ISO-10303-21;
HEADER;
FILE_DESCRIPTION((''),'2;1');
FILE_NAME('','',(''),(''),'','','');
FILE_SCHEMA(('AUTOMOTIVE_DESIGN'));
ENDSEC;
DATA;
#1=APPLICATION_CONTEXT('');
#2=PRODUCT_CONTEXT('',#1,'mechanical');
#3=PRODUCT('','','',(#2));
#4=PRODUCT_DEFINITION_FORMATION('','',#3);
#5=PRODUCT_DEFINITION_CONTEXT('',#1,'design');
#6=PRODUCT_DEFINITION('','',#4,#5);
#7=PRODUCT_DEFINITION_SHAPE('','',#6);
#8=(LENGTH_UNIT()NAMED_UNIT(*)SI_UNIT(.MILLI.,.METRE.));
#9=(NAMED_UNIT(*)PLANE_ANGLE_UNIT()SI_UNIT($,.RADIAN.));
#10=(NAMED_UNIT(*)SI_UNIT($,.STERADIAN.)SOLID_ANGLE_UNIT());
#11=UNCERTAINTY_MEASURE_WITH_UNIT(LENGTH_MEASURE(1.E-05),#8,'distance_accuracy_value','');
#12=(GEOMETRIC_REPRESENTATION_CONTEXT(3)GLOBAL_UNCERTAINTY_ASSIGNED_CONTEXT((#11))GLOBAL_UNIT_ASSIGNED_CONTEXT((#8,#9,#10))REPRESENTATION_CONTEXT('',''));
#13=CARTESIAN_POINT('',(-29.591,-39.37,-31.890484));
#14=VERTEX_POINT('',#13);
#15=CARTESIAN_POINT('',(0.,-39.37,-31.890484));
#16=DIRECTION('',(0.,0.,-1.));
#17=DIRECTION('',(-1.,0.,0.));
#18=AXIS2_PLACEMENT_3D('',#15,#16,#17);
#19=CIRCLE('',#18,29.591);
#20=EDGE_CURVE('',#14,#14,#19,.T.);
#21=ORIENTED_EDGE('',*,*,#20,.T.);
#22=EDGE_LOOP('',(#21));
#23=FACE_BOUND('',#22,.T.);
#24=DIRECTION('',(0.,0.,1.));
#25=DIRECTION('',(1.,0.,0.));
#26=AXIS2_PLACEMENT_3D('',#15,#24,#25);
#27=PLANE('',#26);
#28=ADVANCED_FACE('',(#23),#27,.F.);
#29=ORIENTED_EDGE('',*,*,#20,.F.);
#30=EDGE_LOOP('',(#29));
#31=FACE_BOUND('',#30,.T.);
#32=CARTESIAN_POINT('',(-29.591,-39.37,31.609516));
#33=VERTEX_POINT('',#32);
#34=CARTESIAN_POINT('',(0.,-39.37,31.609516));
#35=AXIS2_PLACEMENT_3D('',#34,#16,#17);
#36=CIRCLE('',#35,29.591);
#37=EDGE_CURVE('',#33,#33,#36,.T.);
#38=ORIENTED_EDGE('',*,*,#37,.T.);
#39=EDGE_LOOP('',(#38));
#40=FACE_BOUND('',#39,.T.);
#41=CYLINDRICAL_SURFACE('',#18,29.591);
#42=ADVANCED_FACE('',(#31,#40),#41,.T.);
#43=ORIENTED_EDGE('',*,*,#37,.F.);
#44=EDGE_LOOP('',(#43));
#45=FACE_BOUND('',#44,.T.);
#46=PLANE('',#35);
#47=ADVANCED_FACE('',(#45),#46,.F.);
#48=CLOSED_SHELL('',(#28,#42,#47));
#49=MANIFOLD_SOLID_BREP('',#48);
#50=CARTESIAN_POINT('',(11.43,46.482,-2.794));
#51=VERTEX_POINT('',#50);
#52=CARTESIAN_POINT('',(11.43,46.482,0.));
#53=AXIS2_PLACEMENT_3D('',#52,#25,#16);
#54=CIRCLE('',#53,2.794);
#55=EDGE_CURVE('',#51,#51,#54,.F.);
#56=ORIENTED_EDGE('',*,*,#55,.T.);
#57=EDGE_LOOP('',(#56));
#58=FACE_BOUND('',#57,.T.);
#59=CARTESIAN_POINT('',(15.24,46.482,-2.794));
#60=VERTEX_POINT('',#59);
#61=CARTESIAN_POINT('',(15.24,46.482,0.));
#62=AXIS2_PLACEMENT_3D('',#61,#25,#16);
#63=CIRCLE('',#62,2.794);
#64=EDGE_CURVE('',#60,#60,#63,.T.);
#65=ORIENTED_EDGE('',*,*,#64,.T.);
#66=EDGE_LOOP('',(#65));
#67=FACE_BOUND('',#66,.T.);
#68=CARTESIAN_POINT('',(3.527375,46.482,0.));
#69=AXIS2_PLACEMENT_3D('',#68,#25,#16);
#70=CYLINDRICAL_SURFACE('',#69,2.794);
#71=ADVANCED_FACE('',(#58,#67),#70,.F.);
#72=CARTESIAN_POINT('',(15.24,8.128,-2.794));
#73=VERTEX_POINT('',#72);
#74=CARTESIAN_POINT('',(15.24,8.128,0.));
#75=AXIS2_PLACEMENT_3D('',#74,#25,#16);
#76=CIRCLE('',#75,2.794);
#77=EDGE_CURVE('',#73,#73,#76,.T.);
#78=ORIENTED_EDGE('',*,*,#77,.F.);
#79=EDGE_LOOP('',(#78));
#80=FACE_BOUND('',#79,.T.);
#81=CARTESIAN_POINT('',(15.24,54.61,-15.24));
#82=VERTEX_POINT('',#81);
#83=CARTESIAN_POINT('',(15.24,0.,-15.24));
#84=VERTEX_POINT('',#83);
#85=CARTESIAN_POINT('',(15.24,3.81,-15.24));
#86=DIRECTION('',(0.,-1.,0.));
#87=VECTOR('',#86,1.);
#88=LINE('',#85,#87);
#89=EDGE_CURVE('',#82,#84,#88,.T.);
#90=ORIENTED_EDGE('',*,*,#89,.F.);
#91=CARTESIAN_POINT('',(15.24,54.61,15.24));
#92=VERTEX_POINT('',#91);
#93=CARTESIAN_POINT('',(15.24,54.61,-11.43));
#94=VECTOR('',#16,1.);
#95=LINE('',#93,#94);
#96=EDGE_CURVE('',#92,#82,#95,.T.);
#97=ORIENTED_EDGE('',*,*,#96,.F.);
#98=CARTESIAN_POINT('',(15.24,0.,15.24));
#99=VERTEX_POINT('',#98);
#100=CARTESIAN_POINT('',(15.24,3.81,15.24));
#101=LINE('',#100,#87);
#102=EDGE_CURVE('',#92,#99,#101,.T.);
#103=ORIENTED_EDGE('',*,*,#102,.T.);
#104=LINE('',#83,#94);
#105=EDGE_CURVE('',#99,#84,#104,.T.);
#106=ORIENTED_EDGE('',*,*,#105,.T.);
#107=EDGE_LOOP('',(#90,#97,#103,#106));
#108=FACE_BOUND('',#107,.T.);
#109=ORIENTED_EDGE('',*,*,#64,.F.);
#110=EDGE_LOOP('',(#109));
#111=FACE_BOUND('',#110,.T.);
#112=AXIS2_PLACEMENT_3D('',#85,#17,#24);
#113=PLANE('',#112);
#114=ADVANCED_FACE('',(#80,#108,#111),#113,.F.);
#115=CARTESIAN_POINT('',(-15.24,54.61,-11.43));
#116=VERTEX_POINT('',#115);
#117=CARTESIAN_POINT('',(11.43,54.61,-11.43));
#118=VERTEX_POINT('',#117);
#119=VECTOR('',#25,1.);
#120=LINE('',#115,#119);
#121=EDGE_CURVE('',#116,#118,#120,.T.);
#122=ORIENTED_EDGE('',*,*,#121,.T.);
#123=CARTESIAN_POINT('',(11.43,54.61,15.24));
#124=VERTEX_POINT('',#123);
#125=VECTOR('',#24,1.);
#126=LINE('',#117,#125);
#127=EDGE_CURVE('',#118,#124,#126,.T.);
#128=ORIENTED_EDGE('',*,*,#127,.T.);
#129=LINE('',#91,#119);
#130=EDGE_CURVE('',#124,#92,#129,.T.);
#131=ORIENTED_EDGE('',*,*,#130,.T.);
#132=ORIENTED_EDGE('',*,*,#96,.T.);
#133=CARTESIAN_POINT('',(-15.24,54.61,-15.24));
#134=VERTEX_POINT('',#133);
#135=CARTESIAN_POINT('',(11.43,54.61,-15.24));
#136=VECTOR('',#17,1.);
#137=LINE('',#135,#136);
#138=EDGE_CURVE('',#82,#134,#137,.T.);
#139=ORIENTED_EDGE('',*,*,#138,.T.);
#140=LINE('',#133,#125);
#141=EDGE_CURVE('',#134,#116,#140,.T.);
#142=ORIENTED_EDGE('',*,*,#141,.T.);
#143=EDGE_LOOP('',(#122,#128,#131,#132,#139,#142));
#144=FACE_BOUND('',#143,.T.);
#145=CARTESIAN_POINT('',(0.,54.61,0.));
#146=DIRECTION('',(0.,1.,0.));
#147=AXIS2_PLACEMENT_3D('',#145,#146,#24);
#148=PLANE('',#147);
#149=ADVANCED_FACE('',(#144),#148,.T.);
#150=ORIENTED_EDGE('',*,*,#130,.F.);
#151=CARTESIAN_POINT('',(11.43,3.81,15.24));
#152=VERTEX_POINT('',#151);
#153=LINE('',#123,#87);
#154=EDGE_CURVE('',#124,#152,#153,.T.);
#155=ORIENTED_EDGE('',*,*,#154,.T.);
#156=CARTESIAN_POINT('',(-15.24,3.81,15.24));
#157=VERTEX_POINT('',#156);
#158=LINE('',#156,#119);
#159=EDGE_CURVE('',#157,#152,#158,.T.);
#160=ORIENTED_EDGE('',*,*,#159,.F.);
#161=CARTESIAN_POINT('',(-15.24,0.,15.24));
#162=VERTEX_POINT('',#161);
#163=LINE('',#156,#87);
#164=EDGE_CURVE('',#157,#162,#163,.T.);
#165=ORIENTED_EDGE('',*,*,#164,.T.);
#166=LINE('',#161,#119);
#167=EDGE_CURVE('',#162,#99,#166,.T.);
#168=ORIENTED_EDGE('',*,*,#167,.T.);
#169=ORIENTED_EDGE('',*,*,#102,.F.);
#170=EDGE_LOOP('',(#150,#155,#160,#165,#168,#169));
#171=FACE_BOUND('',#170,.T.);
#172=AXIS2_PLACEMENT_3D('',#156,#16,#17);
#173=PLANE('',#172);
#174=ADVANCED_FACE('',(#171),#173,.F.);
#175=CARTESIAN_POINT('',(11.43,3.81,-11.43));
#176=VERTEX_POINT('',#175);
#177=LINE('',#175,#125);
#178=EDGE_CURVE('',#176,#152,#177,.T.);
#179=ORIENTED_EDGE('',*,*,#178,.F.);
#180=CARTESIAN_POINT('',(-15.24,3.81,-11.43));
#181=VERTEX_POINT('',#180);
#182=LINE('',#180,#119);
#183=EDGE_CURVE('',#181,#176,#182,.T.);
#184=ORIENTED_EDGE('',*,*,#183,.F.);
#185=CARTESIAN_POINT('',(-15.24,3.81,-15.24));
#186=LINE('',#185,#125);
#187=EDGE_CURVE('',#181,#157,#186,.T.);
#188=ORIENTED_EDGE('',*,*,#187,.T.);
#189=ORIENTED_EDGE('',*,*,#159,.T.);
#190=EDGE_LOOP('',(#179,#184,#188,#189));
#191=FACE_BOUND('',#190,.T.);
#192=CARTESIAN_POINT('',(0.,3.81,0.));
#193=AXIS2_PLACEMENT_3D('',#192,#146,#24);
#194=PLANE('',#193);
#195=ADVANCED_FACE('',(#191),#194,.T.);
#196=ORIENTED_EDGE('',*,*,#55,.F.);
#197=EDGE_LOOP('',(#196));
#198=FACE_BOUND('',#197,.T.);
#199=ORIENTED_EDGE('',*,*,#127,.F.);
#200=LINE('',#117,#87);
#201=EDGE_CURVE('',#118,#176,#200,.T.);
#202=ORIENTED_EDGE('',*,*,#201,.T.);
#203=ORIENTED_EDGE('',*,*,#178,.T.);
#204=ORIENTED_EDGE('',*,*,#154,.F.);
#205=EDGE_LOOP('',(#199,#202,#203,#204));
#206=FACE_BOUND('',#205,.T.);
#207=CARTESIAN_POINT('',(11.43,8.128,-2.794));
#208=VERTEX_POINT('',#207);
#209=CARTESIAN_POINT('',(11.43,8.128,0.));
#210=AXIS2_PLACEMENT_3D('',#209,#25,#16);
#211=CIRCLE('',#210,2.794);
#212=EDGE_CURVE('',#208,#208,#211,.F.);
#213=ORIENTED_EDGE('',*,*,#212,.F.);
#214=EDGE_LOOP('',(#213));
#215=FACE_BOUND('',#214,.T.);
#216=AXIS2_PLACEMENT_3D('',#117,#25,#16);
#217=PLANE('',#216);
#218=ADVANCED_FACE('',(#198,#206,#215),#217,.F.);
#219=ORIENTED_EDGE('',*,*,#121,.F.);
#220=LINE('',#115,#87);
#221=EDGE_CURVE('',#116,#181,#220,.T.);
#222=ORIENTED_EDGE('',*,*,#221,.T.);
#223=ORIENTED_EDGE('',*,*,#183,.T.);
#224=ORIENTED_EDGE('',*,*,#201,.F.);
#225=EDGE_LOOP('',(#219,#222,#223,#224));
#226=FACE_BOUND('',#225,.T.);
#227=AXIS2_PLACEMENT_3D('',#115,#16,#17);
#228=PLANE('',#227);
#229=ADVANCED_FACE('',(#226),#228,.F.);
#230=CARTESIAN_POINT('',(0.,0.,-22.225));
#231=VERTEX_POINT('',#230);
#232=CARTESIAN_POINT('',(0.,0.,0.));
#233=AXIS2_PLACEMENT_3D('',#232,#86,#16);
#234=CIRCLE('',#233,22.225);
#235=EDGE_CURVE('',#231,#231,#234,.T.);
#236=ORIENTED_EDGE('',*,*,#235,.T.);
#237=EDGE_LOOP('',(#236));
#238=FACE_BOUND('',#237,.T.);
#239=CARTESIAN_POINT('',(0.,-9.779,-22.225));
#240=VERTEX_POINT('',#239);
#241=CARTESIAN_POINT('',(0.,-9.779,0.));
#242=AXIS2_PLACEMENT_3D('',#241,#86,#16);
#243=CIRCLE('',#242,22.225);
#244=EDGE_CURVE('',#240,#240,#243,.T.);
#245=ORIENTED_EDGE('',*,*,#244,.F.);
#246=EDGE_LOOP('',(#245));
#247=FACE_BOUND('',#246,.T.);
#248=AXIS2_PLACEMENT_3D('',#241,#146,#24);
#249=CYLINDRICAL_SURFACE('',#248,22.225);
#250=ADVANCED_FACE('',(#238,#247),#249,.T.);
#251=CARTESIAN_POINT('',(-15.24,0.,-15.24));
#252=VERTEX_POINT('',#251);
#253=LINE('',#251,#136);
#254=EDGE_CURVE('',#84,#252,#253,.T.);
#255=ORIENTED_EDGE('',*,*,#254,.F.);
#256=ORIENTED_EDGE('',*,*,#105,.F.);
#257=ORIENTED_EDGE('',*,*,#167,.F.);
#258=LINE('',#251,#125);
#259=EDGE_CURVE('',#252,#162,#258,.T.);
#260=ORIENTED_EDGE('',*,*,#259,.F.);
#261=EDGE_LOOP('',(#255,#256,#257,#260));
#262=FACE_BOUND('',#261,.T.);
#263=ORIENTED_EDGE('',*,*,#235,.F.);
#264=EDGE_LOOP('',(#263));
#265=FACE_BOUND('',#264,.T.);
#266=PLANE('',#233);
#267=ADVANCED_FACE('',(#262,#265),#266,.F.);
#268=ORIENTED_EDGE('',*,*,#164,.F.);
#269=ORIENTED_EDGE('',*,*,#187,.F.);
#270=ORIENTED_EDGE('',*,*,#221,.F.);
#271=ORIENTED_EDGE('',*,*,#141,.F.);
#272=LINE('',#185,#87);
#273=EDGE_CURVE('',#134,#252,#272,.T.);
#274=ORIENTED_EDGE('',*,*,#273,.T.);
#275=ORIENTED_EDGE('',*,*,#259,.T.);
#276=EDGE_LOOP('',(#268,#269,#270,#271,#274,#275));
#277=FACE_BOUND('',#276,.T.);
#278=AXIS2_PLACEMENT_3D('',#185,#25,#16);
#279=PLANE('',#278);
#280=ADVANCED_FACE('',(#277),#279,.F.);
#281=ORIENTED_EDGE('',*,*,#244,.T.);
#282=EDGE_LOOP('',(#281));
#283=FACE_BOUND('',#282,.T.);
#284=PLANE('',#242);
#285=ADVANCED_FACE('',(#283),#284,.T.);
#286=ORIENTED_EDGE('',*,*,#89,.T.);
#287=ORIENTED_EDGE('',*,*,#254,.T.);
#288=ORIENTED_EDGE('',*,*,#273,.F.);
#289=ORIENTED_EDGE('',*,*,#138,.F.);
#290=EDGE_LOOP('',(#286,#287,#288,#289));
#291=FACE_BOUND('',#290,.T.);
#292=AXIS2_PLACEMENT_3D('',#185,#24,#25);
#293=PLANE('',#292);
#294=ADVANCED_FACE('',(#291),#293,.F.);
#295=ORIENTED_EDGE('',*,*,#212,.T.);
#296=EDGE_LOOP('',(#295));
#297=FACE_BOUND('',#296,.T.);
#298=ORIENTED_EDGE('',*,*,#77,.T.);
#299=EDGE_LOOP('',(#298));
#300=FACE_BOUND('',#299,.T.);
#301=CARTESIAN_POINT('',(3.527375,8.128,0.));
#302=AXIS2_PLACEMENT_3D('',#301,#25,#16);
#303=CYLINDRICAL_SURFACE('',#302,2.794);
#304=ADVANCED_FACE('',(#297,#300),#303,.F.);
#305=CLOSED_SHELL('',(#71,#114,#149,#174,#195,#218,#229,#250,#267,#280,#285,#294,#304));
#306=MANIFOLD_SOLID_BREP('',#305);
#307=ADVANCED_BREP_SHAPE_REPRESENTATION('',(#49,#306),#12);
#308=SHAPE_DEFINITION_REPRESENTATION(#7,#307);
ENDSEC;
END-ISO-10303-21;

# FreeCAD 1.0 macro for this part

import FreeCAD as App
import Part
import Sketcher
Q = App.Units.Quantity


def add_polygon(sketch, points):
    """Adds a closed chain of lines whose ends are joined by coincident constraints."""
    first, n = sketch.GeometryCount, len(points)
    for a, b in zip(points, points[1:] + points[:1]):
        sketch.addGeometry(Part.LineSegment(App.Vector(*a, 0), App.Vector(*b, 0)), False)
    for i in range(n):
        sketch.addConstraint(Sketcher.Constraint("Coincident", first + i, 2, first + (i + 1) % n, 1))

doc = App.newDocument("Part")
params = doc.addObject("Spreadsheet::Sheet", "Params")
for row, (alias, value) in enumerate([
    ("sketch1_width", "1.2 in"),
    ("pad1_length", "0.15 in"),
    ("sketch2_width", "1.2 in"),
    ("sketch2_width2", "1.05 in"),
    ("pad2_length", "2 in"),
    ("sketch3_diameter", "0.22 in"),
    ("pocket1_length", "0.15 in"),
    ("sketch4_diameter", "1.75 in"),
    ("pad3_length", "0.385 in"),
    ("sketch5_height", "2.5 in"),
    ("sketch5_width", "1.165 in"),
    ("revolution_angle", "360 deg"),
], start=1):
    params.set(f"A{row}", alias)
    params.set(f"B{row}", "=" + value)
    params.setAlias(f"B{row}", alias)

body = doc.addObject("PartDesign::Body", "Body")

# Sketch on XZ plane
sketch1 = body.newObject("Sketcher::SketchObject", "Sketch")
sketch1.AttachmentSupport = (doc.getObject("XZ_Plane"), [""])
sketch1.MapMode = "FlatFace"
add_polygon(sketch1, [(-15, -15), (-15, 15), (15, 15), (15, -15)])  # lines 0-3
sketch1.addConstraint(Sketcher.Constraint("Vertical", 0))
sketch1.addConstraint(Sketcher.Constraint("Horizontal", 1))
sketch1.addConstraint(Sketcher.Constraint("Vertical", 2))
sketch1.addConstraint(Sketcher.Constraint("Horizontal", 3))
sketch1.addConstraint(Sketcher.Constraint("Symmetric", 0, 2, 2, 2, -1, 1))
sketch1.addConstraint(Sketcher.Constraint("Equal", 3, 0))
sketch1.addConstraint(Sketcher.Constraint("DistanceX", 1, 1, 1, 2, Q("1.2 in")))
sketch1.setExpression("Constraints[10]", "Params.sketch1_width")
pad1 = body.newObject("PartDesign::Pad", "Pad")
pad1.Profile = sketch1
pad1.setExpression("Length", "Params.pad1_length")
pad1.Reversed = True

# Sketch on XZ plane
sketch2 = body.newObject("Sketcher::SketchObject", "Sketch001")
sketch2.AttachmentSupport = (doc.getObject("XZ_Plane"), [""])
sketch2.MapMode = "FlatFace"
sketch2.AttachmentOffset = App.Placement(App.Vector(0, 0, -0.15 * 25.4), App.Rotation())
add_polygon(sketch2, [(15.2, -15.2), (-15.2, -15.2), (-15.2, -11.4), (11.4, -11.4), (11.4, 15.2), (15.2, 15.2)])  # lines 0-5
sketch2.addConstraint(Sketcher.Constraint("Horizontal", 0))
sketch2.addConstraint(Sketcher.Constraint("Vertical", 1))
sketch2.addConstraint(Sketcher.Constraint("Horizontal", 2))
sketch2.addConstraint(Sketcher.Constraint("Vertical", 3))
sketch2.addConstraint(Sketcher.Constraint("Horizontal", 4))
sketch2.addConstraint(Sketcher.Constraint("Vertical", 5))
sketch2.addConstraint(Sketcher.Constraint("Symmetric", 0, 2, 4, 2, -1, 1))
sketch2.addConstraint(Sketcher.Constraint("Equal", 4, 1))
sketch2.addConstraint(Sketcher.Constraint("Equal", 2, 3))
sketch2.addConstraint(Sketcher.Constraint("DistanceX", 0, 2, 0, 1, Q("1.2 in")))
sketch2.addConstraint(Sketcher.Constraint("DistanceX", 2, 1, 2, 2, Q("1.05 in")))
sketch2.setExpression("Constraints[15]", "Params.sketch2_width")
sketch2.setExpression("Constraints[16]", "Params.sketch2_width2")
pad2 = body.newObject("PartDesign::Pad", "Pad001")
pad2.Profile = sketch2
pad2.setExpression("Length", "Params.pad2_length")
pad2.Reversed = True

# Sketch on YZ plane
sketch3 = body.newObject("Sketcher::SketchObject", "Sketch002")
sketch3.AttachmentSupport = (doc.getObject("YZ_Plane"), [""])
sketch3.MapMode = "FlatFace"
sketch3.AttachmentOffset = App.Placement(App.Vector(0, 0, 0.6 * 25.4), App.Rotation())
sketch3.addGeometry(Part.Circle(App.Vector(46.5, 0, 0), App.Vector(0, 0, 1), 2.8), False)
sketch3.addGeometry(Part.Circle(App.Vector(8.1, 0, 0), App.Vector(0, 0, 1), 2.8), False)
sketch3.addConstraint(Sketcher.Constraint("Equal", 0, 1))
sketch3.addConstraint(Sketcher.Constraint("PointOnObject", 0, 3, -1))
sketch3.addConstraint(Sketcher.Constraint("PointOnObject", 1, 3, -1))
sketch3.addConstraint(Sketcher.Constraint("Diameter", 0, Q("0.22 in")))
sketch3.addConstraint(Sketcher.Constraint("DistanceX", -1, 1, 0, 3, Q("1.83 in")))
sketch3.addConstraint(Sketcher.Constraint("DistanceX", -1, 1, 1, 3, Q("0.32 in")))
sketch3.setExpression("Constraints[3]", "Params.sketch3_diameter")
pocket1 = body.newObject("PartDesign::Pocket", "Pocket")
pocket1.Profile = sketch3
pocket1.setExpression("Length", "Params.pocket1_length")

# Sketch on XZ plane
sketch4 = body.newObject("Sketcher::SketchObject", "Sketch003")
sketch4.AttachmentSupport = (doc.getObject("XZ_Plane"), [""])
sketch4.MapMode = "FlatFace"
sketch4.addGeometry(Part.Circle(App.Vector(0, 0, 0), App.Vector(0, 0, 1), 22), False)
sketch4.addConstraint(Sketcher.Constraint("Coincident", 0, 3, -1, 1))
sketch4.addConstraint(Sketcher.Constraint("Diameter", 0, Q("1.75 in")))
sketch4.setExpression("Constraints[1]", "Params.sketch4_diameter")
pad3 = body.newObject("PartDesign::Pad", "Pad002")
pad3.Profile = sketch4
pad3.setExpression("Length", "Params.pad3_length")
body2 = doc.addObject("PartDesign::Body", "Body001")

# Sketch on YZ plane
sketch5 = body2.newObject("Sketcher::SketchObject", "Sketch004")
sketch5.AttachmentSupport = (doc.getObject("YZ_Plane001"), [""])
sketch5.MapMode = "FlatFace"
add_polygon(sketch5, [(-10, -32), (-39, -32), (-39, 32), (-10, 32)])  # lines 0-3
sketch5.addGeometry(Part.LineSegment(App.Vector(-39, -32, 0), App.Vector(-39, 32, 0)), True)  # axis
sketch5.addConstraint(Sketcher.Constraint("Horizontal", 0))
sketch5.addConstraint(Sketcher.Constraint("Vertical", 1))
sketch5.addConstraint(Sketcher.Constraint("Horizontal", 2))
sketch5.addConstraint(Sketcher.Constraint("Vertical", 3))
sketch5.addConstraint(Sketcher.Constraint("Vertical", 4))
sketch5.addConstraint(Sketcher.Constraint("Coincident", 4, 1, 0, 2))
sketch5.addConstraint(Sketcher.Constraint("Horizontal", 2, 2, 4, 2))
sketch5.addConstraint(Sketcher.Constraint("DistanceY", 1, 1, 1, 2, Q("2.5 in")))
sketch5.addConstraint(Sketcher.Constraint("DistanceX", 0, 2, 0, 1, Q("1.165 in")))
sketch5.addConstraint(Sketcher.Constraint("DistanceX", 0, 2, -1, 1, Q("1.55 in")))
sketch5.addConstraint(Sketcher.Constraint("DistanceY", 0, 2, -1, 1, Q("31.890484 mm")))
sketch5.setExpression("Constraints[11]", "Params.sketch5_height")
sketch5.setExpression("Constraints[12]", "Params.sketch5_width")
revolution = body2.newObject("PartDesign::Revolution", "Revolution")
revolution.Profile = sketch5
revolution.ReferenceAxis = (sketch5, ["Axis0"])
revolution.setExpression("Angle", "Params.revolution_angle")

doc.recompute()
